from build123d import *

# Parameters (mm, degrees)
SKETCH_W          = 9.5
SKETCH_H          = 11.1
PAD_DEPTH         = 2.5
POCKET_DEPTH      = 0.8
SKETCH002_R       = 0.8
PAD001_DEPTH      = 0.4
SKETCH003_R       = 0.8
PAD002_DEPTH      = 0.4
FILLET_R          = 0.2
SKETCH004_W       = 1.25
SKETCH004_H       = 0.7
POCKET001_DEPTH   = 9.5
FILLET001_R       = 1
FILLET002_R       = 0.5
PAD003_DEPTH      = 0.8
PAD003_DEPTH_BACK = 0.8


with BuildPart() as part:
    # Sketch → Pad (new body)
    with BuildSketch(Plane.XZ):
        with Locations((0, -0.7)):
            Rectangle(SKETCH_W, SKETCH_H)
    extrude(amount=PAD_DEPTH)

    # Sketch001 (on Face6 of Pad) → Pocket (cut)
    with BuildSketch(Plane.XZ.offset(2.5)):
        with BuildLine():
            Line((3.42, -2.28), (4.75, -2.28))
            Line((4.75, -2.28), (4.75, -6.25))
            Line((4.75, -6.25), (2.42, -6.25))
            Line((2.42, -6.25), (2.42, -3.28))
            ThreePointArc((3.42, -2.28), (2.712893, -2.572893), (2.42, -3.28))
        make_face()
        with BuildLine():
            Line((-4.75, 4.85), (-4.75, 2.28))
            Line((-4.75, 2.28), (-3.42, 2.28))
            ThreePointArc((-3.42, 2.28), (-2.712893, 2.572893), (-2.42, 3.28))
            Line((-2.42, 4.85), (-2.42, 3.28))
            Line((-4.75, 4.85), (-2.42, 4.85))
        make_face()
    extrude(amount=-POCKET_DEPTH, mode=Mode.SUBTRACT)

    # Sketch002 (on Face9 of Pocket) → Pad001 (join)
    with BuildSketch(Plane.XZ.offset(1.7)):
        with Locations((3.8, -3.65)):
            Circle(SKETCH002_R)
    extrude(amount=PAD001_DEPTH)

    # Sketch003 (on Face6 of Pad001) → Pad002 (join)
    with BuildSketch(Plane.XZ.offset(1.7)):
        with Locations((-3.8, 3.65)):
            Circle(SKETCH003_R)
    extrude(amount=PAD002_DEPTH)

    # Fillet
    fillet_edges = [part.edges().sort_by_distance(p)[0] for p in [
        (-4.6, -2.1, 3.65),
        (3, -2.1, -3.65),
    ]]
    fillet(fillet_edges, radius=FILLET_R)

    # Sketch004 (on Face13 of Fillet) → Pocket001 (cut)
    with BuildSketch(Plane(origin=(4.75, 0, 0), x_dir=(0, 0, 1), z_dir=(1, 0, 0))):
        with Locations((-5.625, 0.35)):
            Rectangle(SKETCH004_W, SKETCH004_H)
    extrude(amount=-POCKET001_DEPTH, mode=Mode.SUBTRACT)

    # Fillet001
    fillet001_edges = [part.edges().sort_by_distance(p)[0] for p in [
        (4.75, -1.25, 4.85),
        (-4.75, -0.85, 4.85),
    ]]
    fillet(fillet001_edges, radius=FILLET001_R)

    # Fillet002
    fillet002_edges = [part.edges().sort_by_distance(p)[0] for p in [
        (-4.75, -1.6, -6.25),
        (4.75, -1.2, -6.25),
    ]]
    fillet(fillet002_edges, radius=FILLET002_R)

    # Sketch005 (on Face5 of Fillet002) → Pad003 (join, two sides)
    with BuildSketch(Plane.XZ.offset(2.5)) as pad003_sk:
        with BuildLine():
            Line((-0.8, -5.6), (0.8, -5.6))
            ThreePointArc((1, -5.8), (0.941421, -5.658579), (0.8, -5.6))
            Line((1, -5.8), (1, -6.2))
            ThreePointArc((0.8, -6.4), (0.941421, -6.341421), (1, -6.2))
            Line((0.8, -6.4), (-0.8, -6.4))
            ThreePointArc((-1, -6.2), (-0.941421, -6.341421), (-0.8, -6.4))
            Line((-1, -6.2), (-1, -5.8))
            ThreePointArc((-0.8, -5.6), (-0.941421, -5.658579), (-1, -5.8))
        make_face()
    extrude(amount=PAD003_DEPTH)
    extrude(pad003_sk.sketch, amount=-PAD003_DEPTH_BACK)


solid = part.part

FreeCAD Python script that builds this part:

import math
import FreeCAD as App
import Part
import Sketcher
from FreeCAD import Vector


def edges_at(feature, points):
    """Names of the edges that pass closest to the given points."""
    edges = feature.Shape.Edges
    near = lambda p: min(range(len(edges)), key=lambda i: edges[i].distToShape(Part.Vertex(*p))[0])
    return sorted({f"Edge{near(p) + 1}" for p in points})

doc = App.newDocument("Part")
body = doc.addObject("PartDesign::Body", "Body")

# Sketch on XZ plane
sketch1 = body.newObject("Sketcher::SketchObject", "Sketch")
sketch1.AttachmentSupport = (doc.getObject("XZ_Plane"), [""])
sketch1.MapMode = "FlatFace"
sketch1.addGeometry([
    Part.LineSegment(Vector(-5, 5, 0), Vector(-5, -6, 0)),
    Part.LineSegment(Vector(-5, -6, 0), Vector(5, -6, 0)),
    Part.LineSegment(Vector(5, -6, 0), Vector(5, 5, 0)),
    Part.LineSegment(Vector(5, 5, 0), Vector(-5, 5, 0)),
], False)
sketch1.addConstraint([
    Sketcher.Constraint("Coincident", 0, 2, 1, 1),
    Sketcher.Constraint("Coincident", 1, 2, 2, 1),
    Sketcher.Constraint("Coincident", 2, 2, 3, 1),
    Sketcher.Constraint("Coincident", 3, 2, 0, 1),
    Sketcher.Constraint("Vertical", 0),
    Sketcher.Constraint("Horizontal", 1),
    Sketcher.Constraint("Vertical", 2),
    Sketcher.Constraint("Horizontal", 3),
    Sketcher.Constraint("DistanceX", 1, 1, 1, 2, 9.5),
    Sketcher.Constraint("DistanceY", 0, 2, 0, 1, 11.1),
    Sketcher.Constraint("DistanceX", 0, 2, -1, 1, 4.75),
    Sketcher.Constraint("DistanceY", 0, 2, -1, 1, 6.25),
])
pad1 = body.newObject("PartDesign::Pad", "Pad")
pad1.Profile = sketch1
pad1.Length = 2.5

# Sketch on XZ plane
sketch2 = body.newObject("Sketcher::SketchObject", "Sketch001")
sketch2.AttachmentSupport = (doc.getObject("XZ_Plane"), [""])
sketch2.MapMode = "FlatFace"
sketch2.AttachmentOffset = App.Placement(Vector(0, 0, 2.5), App.Rotation())
sketch2.addGeometry([
    Part.LineSegment(Vector(4.8, -2.3, 0), Vector(3.4, -2.3, 0)),  # 0
    Part.ArcOfCircle(Part.Circle(Vector(3.4, -3.3, 0), Vector(0, 0, 1), 1), math.radians(90), math.radians(180)),  # 1
    Part.LineSegment(Vector(2.4, -3.3, 0), Vector(2.4, -6.2, 0)),  # 2
    Part.LineSegment(Vector(2.4, -6.2, 0), Vector(4.8, -6.2, 0)),  # 3
    Part.LineSegment(Vector(4.8, -6.2, 0), Vector(4.8, -2.3, 0)),  # 4
    Part.LineSegment(Vector(-4.8, 4.8, 0), Vector(-4.8, 2.3, 0)),  # 5
    Part.LineSegment(Vector(-4.8, 2.3, 0), Vector(-3.4, 2.3, 0)),  # 6
    Part.ArcOfCircle(Part.Circle(Vector(-3.4, 3.3, 0), Vector(0, 0, 1), 1), math.radians(-90), math.radians(0)),  # 7
    Part.LineSegment(Vector(-2.4, 3.3, 0), Vector(-2.4, 4.8, 0)),  # 8
    Part.LineSegment(Vector(-2.4, 4.8, 0), Vector(-4.8, 4.8, 0)),  # 9
], False)
sketch2.addConstraint([
    Sketcher.Constraint("Tangent", 0, 2, 1, 1),
    Sketcher.Constraint("Tangent", 1, 2, 2, 1),
    Sketcher.Constraint("Coincident", 2, 2, 3, 1),
    Sketcher.Constraint("Coincident", 3, 2, 4, 1),
    Sketcher.Constraint("Coincident", 4, 2, 0, 1),
    Sketcher.Constraint("Coincident", 5, 2, 6, 1),
    Sketcher.Constraint("Tangent", 6, 2, 7, 1),
    Sketcher.Constraint("Tangent", 7, 2, 8, 1),
    Sketcher.Constraint("Coincident", 8, 2, 9, 1),
    Sketcher.Constraint("Coincident", 9, 2, 5, 1),
    Sketcher.Constraint("Horizontal", 0),
    Sketcher.Constraint("Vertical", 2),
    Sketcher.Constraint("Horizontal", 3),
    Sketcher.Constraint("Vertical", 4),
    Sketcher.Constraint("Vertical", 5),
    Sketcher.Constraint("Horizontal", 6),
    Sketcher.Constraint("Vertical", 8),
    Sketcher.Constraint("Horizontal", 9),
    Sketcher.Constraint("Equal", 1, 7),
    Sketcher.Constraint("Symmetric", 1, 3, 7, 3, -1, 1),
    Sketcher.Constraint("Equal", 0, 6),
    Sketcher.Constraint("Radius", 1, 0.999999),
    Sketcher.Constraint("DistanceX", 0, 2, 0, 1, 1.33),
    Sketcher.Constraint("DistanceY", 2, 2, 2, 1, 2.97),
    Sketcher.Constraint("DistanceY", 5, 2, 5, 1, 2.57),
    Sketcher.Constraint("DistanceX", 5, 2, 4, 2, 9.5),
    Sketcher.Constraint("DistanceY", 1, 3, -1, 1, 3.279999),
])
pocket1 = body.newObject("PartDesign::Pocket", "Pocket")
pocket1.Profile = sketch2
pocket1.Length = 0.8

# Sketch on XZ plane
sketch3 = body.newObject("Sketcher::SketchObject", "Sketch002")
sketch3.AttachmentSupport = (doc.getObject("XZ_Plane"), [""])
sketch3.MapMode = "FlatFace"
sketch3.AttachmentOffset = App.Placement(Vector(0, 0, 1.7), App.Rotation())
sketch3.addGeometry(Part.Circle(Vector(3.8, -3.6, 0), Vector(0, 0, 1), 0.8), False)
sketch3.addConstraint([
    Sketcher.Constraint("Diameter", 0, 1.6),
    Sketcher.Constraint("DistanceX", -1, 1, 0, 3, 3.8),
    Sketcher.Constraint("DistanceY", 0, 3, -1, 1, 3.65),
])
pad2 = body.newObject("PartDesign::Pad", "Pad001")
pad2.Profile = sketch3
pad2.Length = 0.4

# Sketch on XZ plane
sketch4 = body.newObject("Sketcher::SketchObject", "Sketch003")
sketch4.AttachmentSupport = (doc.getObject("XZ_Plane"), [""])
sketch4.MapMode = "FlatFace"
sketch4.AttachmentOffset = App.Placement(Vector(0, 0, 1.7), App.Rotation())
sketch4.addGeometry(Part.Circle(Vector(-3.8, 3.6, 0), Vector(0, 0, 1), 0.8), False)
sketch4.addConstraint([
    Sketcher.Constraint("Diameter", 0, 1.6),
    Sketcher.Constraint("DistanceX", 0, 3, -1, 1, 3.8),
    Sketcher.Constraint("DistanceY", -1, 1, 0, 3, 3.65),
])
pad3 = body.newObject("PartDesign::Pad", "Pad002")
pad3.Profile = sketch4
pad3.Length = 0.4
doc.recompute()

fillet = body.newObject("PartDesign::Fillet", "Fillet")
fillet.Base = (pad3, edges_at(pad3, [(-4.6, -2.1, 3.65), (3, -2.1, -3.65)]))
fillet.Radius = 0.2

# Sketch on YZ plane
sketch5 = body.newObject("Sketcher::SketchObject", "Sketch004")
sketch5.AttachmentSupport = (doc.getObject("YZ_Plane"), [""])
sketch5.MapMode = "FlatFace"
sketch5.AttachmentOffset = App.Placement(Vector(0, 0, 4.75), App.Rotation())
sketch5.addGeometry([
    Part.LineSegment(Vector(-0.7, -6.2, 0), Vector(0, -6.2, 0)),
    Part.LineSegment(Vector(0, -6.2, 0), Vector(0, -5, 0)),
    Part.LineSegment(Vector(0, -5, 0), Vector(-0.7, -5, 0)),
    Part.LineSegment(Vector(-0.7, -5, 0), Vector(-0.7, -6.2, 0)),
], False)
sketch5.addConstraint([
    Sketcher.Constraint("Coincident", 0, 2, 1, 1),
    Sketcher.Constraint("Coincident", 1, 2, 2, 1),
    Sketcher.Constraint("Coincident", 2, 2, 3, 1),
    Sketcher.Constraint("Coincident", 3, 2, 0, 1),
    Sketcher.Constraint("Horizontal", 0),
    Sketcher.Constraint("Vertical", 1),
    Sketcher.Constraint("Horizontal", 2),
    Sketcher.Constraint("Vertical", 3),
    Sketcher.Constraint("PointOnObject", 0, 2, -2),
    Sketcher.Constraint("DistanceX", 0, 1, 0, 2, 0.7),
    Sketcher.Constraint("DistanceY", 1, 2, -1, 1, 5.0),
    Sketcher.Constraint("DistanceY", 1, 1, 1, 2, 1.25),
])
pocket2 = body.newObject("PartDesign::Pocket", "Pocket001")
pocket2.Profile = sketch5
pocket2.Length = 9.5
doc.recompute()

fillet2 = body.newObject("PartDesign::Fillet", "Fillet001")
fillet2.Base = (pocket2, edges_at(pocket2, [(4.75, -1.25, 4.85), (-4.75, -0.85, 4.85)]))
fillet2.Radius = 1
doc.recompute()

fillet3 = body.newObject("PartDesign::Fillet", "Fillet002")
fillet3.Base = (fillet2, edges_at(fillet2, [(-4.75, -1.6, -6.25), (4.75, -1.2, -6.25)]))
fillet3.Radius = 0.5

# Sketch on XZ plane
sketch6 = body.newObject("Sketcher::SketchObject", "Sketch005")
sketch6.AttachmentSupport = (doc.getObject("XZ_Plane"), [""])
sketch6.MapMode = "FlatFace"
sketch6.AttachmentOffset = App.Placement(Vector(0, 0, 2.5), App.Rotation())
sketch6.addGeometry([
    Part.LineSegment(Vector(0.8, -5.6, 0), Vector(-0.8, -5.6, 0)),  # 0
    Part.ArcOfCircle(Part.Circle(Vector(-0.8, -5.8, 0), Vector(0, 0, 1), 0.2), math.radians(90), math.radians(180)),  # 1
    Part.LineSegment(Vector(-1, -5.8, 0), Vector(-1, -6.2, 0)),  # 2
    Part.ArcOfCircle(Part.Circle(Vector(-0.8, -6.2, 0), Vector(0, 0, 1), 0.2), math.radians(-180), math.radians(-90)),  # 3
    Part.LineSegment(Vector(-0.8, -6.4, 0), Vector(0.8, -6.4, 0)),  # 4
    Part.ArcOfCircle(Part.Circle(Vector(0.8, -6.2, 0), Vector(0, 0, 1), 0.2), math.radians(-90), math.radians(0)),  # 5
    Part.LineSegment(Vector(1, -6.2, 0), Vector(1, -5.8, 0)),  # 6
    Part.ArcOfCircle(Part.Circle(Vector(0.8, -5.8, 0), Vector(0, 0, 1), 0.2), math.radians(0), math.radians(90)),  # 7
], False)
sketch6.addConstraint([
    Sketcher.Constraint("Coincident", 0, 2, 1, 1),
    Sketcher.Constraint("Coincident", 1, 2, 2, 1),
    Sketcher.Constraint("Coincident", 2, 2, 3, 1),
    Sketcher.Constraint("Coincident", 3, 2, 4, 1),
    Sketcher.Constraint("Coincident", 4, 2, 5, 1),
    Sketcher.Constraint("Coincident", 5, 2, 6, 1),
    Sketcher.Constraint("Coincident", 6, 2, 7, 1),
    Sketcher.Constraint("Coincident", 7, 2, 0, 1),
    Sketcher.Constraint("Horizontal", 0),
    Sketcher.Constraint("Vertical", 2),
    Sketcher.Constraint("Horizontal", 4),
    Sketcher.Constraint("Vertical", 6),
    Sketcher.Constraint("Equal", 1, 3),
    Sketcher.Constraint("Equal", 3, 5),
    Sketcher.Constraint("Equal", 5, 7),
    Sketcher.Constraint("Symmetric", 2, 2, 5, 2, -2),
    Sketcher.Constraint("Horizontal", 7, 3, 1, 2),
    Sketcher.Constraint("Horizontal", 5, 3, 2, 2),
    Sketcher.Constraint("Horizontal", 1, 2, 6, 2),
    Sketcher.Constraint("Vertical", 3, 3, 0, 2),
    Sketcher.Constraint("Vertical", 0, 2, 3, 2),
    Sketcher.Constraint("Vertical", 7, 3, 4, 2),
    Sketcher.Constraint("Vertical", 4, 2, 7, 2),
    Sketcher.Constraint("Radius", 1, 0.200001),
    Sketcher.Constraint("DistanceX", 0, 2, 0, 1, 1.6),
    Sketcher.Constraint("DistanceY", 2, 2, 2, 1, 0.4),
    Sketcher.Constraint("DistanceY", 1, 3, -1, 1, 5.800001),
])
pad4 = body.newObject("PartDesign::Pad", "Pad003")
pad4.Profile = sketch6
pad4.Type = "TwoLengths"
pad4.Length = 0.8
pad4.Length2 = 0.8

doc.recompute()
